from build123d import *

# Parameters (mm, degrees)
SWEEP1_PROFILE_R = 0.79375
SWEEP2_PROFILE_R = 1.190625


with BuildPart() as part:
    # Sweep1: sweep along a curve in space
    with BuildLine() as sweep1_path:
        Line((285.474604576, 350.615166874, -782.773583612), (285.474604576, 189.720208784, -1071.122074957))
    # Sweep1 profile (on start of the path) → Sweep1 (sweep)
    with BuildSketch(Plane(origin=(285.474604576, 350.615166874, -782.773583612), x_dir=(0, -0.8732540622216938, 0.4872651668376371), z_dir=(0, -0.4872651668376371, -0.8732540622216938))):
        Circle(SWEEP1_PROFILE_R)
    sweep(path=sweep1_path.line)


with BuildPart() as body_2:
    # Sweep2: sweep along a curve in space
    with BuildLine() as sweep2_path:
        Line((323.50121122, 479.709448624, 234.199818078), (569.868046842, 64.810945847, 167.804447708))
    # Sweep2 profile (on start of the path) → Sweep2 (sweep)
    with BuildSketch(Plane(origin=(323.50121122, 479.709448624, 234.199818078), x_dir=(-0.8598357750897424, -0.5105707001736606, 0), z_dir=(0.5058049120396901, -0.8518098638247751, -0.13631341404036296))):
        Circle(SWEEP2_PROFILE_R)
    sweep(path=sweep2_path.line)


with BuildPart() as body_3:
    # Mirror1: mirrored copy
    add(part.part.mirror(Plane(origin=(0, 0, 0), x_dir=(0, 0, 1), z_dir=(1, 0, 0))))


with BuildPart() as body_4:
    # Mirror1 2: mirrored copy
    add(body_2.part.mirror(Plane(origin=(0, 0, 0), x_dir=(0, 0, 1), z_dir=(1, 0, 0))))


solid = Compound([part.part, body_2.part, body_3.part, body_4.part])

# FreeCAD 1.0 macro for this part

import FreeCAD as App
import Part
import Sketcher
Q = App.Units.Quantity

doc = App.newDocument("Part")
params = doc.addObject("Spreadsheet::Sheet", "Params")
for row, (alias, value) in enumerate([
    ("sketch1_diameter", "0.0625 in"),
    ("sketch2_width", "13 in"),
    ("sketch3_diameter", "0.09375 in"),
], start=1):
    params.set(f"A{row}", alias)
    params.set(f"B{row}", "=" + value)
    params.setAlias(f"B{row}", alias)

body = doc.addObject("PartDesign::Body", "Body")

# Sketch on an angled plane
sketch1 = body.newObject("Sketcher::SketchObject", "Sketch")
sketch1.Placement = App.Placement(App.Vector(285.474605, 350.615167, -782.773584), App.Rotation(App.Vector(0, -0.873254062, 0.487265167), App.Vector(-1, 0, 0), App.Vector(0, -0.487265167, -0.873254062), "ZXY"))
sketch1.addGeometry(Part.Circle(App.Vector(0, 0, 0), App.Vector(0, 0, 1), 0.8), False)
sketch1.addConstraint([
    Sketcher.Constraint("Coincident", 0, 3, -1, 1),
    Sketcher.Constraint("Diameter", 0, Q("0.0625 in")),
])
sketch1.setExpression("Constraints[1]", "Params.sketch1_diameter")

# Sketch on an angled plane
sketch2 = body.newObject("Sketcher::SketchObject", "Sketch001")
sketch2.Placement = App.Placement(App.Vector(0, 600.44462, -335.04081), App.Rotation(App.Vector(0, 0.487265167, 0.873254062), App.Vector(1, 0, 0), App.Vector(0, 0.873254062, -0.487265167), "ZXY"))
sketch2.addGeometry(Part.LineSegment(App.Vector(-513, 285, 0), App.Vector(-843, 285, 0)), False)
sketch2.addConstraint([
    Sketcher.Constraint("Horizontal", 0),
    Sketcher.Constraint("DistanceX", 0, 2, 0, 1, Q("13 in")),
    Sketcher.Constraint("DistanceX", 0, 1, -1, 1, 512.717654),
    Sketcher.Constraint("DistanceY", -1, 1, 0, 1, 285.474604),
])
sketch2.setExpression("Constraints[1]", "Params.sketch2_width")
doc.recompute()

additivepipe = body.newObject("PartDesign::AdditivePipe", "AdditivePipe")
additivepipe.Profile = sketch1
additivepipe.Spine = (sketch2, ["Edge1"])
body2 = doc.addObject("PartDesign::Body", "Body001")

# Sketch on an angled plane
sketch3 = body2.newObject("Sketcher::SketchObject", "Sketch002")
sketch3.Placement = App.Placement(App.Vector(323.501211, 479.709449, 234.199818), App.Rotation(App.Vector(-0.859835775, -0.5105707, 0), App.Vector(-0.069597635, 0.11720715, -0.990665763), App.Vector(0.505804912, -0.851809864, -0.136313414), "ZXY"))
sketch3.addGeometry(Part.Circle(App.Vector(0, 0, 0), App.Vector(0, 0, 1), 1.2), False)
sketch3.addConstraint([
    Sketcher.Constraint("Coincident", 0, 3, -1, 1),
    Sketcher.Constraint("Diameter", 0, Q("0.09375 in")),
])
sketch3.setExpression("Constraints[1]", "Params.sketch3_diameter")

# Sketch on an angled plane
sketch4 = body2.newObject("Sketcher::SketchObject", "Sketch003")
sketch4.Placement = App.Placement(App.Vector(449.76591, 267.071111, 0), App.Rotation(App.Vector(0.5105707, -0.859835775, 0), App.Vector(0, 0, 1), App.Vector(-0.859835775, -0.5105707, 0), "ZXY"))
sketch4.addGeometry(Part.LineSegment(App.Vector(-247, 234, 0), App.Vector(235, 168, 0)), False)
sketch4.addConstraint([
    Sketcher.Constraint("DistanceY", 0, 2, 0, 1, 66.39537),
    Sketcher.Constraint("Distance", 0, 487.078772),
    Sketcher.Constraint("DistanceX", 0, 1, -1, 1, 247.301106),
    Sketcher.Constraint("DistanceY", -1, 1, 0, 1, 234.199818),
])
doc.recompute()

additivepipe2 = body2.newObject("PartDesign::AdditivePipe", "AdditivePipe001")
additivepipe2.Profile = sketch3
additivepipe2.Spine = (sketch4, ["Edge1"])
body3 = doc.addObject("PartDesign::Body", "Body002")
doc.recompute()

mirroring = doc.addObject("Part::Mirroring", "Mirroring")
mirroring.Source = body
mirroring.Base = App.Vector(0, 0, 0)
mirroring.Normal = App.Vector(1, 0, 0)
body3.BaseFeature = mirroring
doc.recompute()
body4 = doc.addObject("PartDesign::Body", "Body003")
doc.recompute()

mirroring2 = doc.addObject("Part::Mirroring", "Mirroring001")
mirroring2.Source = body2
mirroring2.Base = App.Vector(0, 0, 0)
mirroring2.Normal = App.Vector(1, 0, 0)
body4.BaseFeature = mirroring2
doc.recompute()
mirroring.Visibility = False
mirroring2.Visibility = False

doc.recompute()
